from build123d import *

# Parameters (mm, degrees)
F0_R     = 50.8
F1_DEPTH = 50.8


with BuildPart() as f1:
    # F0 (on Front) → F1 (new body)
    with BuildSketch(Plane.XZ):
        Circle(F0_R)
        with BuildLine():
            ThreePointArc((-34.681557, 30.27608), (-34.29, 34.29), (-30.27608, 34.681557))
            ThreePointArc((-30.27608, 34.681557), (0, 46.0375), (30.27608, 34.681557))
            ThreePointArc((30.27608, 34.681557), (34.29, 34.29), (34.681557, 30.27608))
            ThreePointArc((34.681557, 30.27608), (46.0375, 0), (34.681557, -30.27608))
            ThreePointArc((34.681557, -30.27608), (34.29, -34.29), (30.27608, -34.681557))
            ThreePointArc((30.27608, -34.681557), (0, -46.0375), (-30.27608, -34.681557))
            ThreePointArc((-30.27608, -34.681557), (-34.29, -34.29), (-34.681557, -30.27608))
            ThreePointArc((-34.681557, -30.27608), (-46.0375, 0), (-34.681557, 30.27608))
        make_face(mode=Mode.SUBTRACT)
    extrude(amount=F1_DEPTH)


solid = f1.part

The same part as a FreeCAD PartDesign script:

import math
import FreeCAD as App
import Part
import Sketcher
Q = App.Units.Quantity

doc = App.newDocument("Part")
body = doc.addObject("PartDesign::Body", "Body")

# Sketch on XZ plane
sketch1 = body.newObject("Sketcher::SketchObject", "Sketch")
sketch1.AttachmentSupport = (doc.getObject("XZ_Plane"), [""])
sketch1.MapMode = "FlatFace"
sketch1.addGeometry([
    Part.Circle(App.Vector(0, 0, 0), App.Vector(0, 0, 1), 50.8),  # 0
    Part.ArcOfCircle(Part.Circle(App.Vector(0, 0, 0), App.Vector(0, 0, 1), 46.0375), math.radians(138.879903), math.radians(221.120097)),  # 1
    Part.ArcOfCircle(Part.Circle(App.Vector(-32.044936, 32.044936, 0), App.Vector(0, 0, 1), 3.174999), math.radians(56.143124), math.radians(213.856876)),  # 2
    Part.ArcOfCircle(Part.Circle(App.Vector(0, 0, 0), App.Vector(0, 0, 1), 46.0375), math.radians(48.879903), math.radians(131.120097)),  # 3
    Part.ArcOfCircle(Part.Circle(App.Vector(32.044936, 32.044936, 0), App.Vector(0, 0, 1), 3.174999), math.radians(-33.856876), math.radians(123.856876)),  # 4
    Part.ArcOfCircle(Part.Circle(App.Vector(0, 0, 0), App.Vector(0, 0, 1), 46.0375), math.radians(-41.120097), math.radians(41.120097)),  # 5
    Part.ArcOfCircle(Part.Circle(App.Vector(32.044936, -32.044936, 0), App.Vector(0, 0, 1), 3.174999), math.radians(-123.856876), math.radians(33.856876)),  # 6
    Part.ArcOfCircle(Part.Circle(App.Vector(0, 0, 0), App.Vector(0, 0, 1), 46.0375), math.radians(-131.120097), math.radians(-48.879903)),  # 7
    Part.ArcOfCircle(Part.Circle(App.Vector(-32.044936, -32.044936, 0), App.Vector(0, 0, 1), 3.174999), math.radians(146.143124), math.radians(303.856876)),  # 8
], False)
sketch1.addConstraint([
    Sketcher.Constraint("Coincident", 1, 1, 2, 2),
    Sketcher.Constraint("Coincident", 2, 1, 3, 2),
    Sketcher.Constraint("Coincident", 3, 1, 4, 2),
    Sketcher.Constraint("Coincident", 4, 1, 5, 2),
    Sketcher.Constraint("Coincident", 5, 1, 6, 2),
    Sketcher.Constraint("Coincident", 6, 1, 7, 2),
    Sketcher.Constraint("Coincident", 7, 1, 8, 2),
    Sketcher.Constraint("Coincident", 8, 1, 1, 2),
    Sketcher.Constraint("Coincident", 0, 3, -1, 1),
    Sketcher.Constraint("Coincident", 1, 3, -1, 1),
    Sketcher.Constraint("Coincident", 3, 3, -1, 1),
    Sketcher.Constraint("Coincident", 5, 3, -1, 1),
    Sketcher.Constraint("Coincident", 7, 3, -1, 1),
    Sketcher.Constraint("Equal", 1, 3),
    Sketcher.Constraint("Equal", 2, 4),
    Sketcher.Constraint("Equal", 3, 5),
    Sketcher.Constraint("Equal", 4, 6),
    Sketcher.Constraint("Equal", 5, 7),
    Sketcher.Constraint("Equal", 6, 8),
    Sketcher.Constraint("Symmetric", 2, 3, 6, 3, -1, 1),
    Sketcher.Constraint("Symmetric", 4, 3, 8, 3, -1, 1),
    Sketcher.Constraint("Symmetric", 2, 3, 4, 3, -2),
    Sketcher.Constraint("Diameter", 0, Q("4 in")),
    Sketcher.Constraint("Radius", 1, Q("1.8125 in")),
    Sketcher.Constraint("Radius", 2, Q("0.125 in")),
    Sketcher.Constraint("DistanceY", -1, 1, 1, 1, 30.27608),
    Sketcher.Constraint("DistanceX", 2, 1, -1, 1, 30.27608),
])
pad1 = body.newObject("PartDesign::Pad", "Pad")
pad1.Profile = sketch1
pad1.Length = Q("2 in")

doc.recompute()
